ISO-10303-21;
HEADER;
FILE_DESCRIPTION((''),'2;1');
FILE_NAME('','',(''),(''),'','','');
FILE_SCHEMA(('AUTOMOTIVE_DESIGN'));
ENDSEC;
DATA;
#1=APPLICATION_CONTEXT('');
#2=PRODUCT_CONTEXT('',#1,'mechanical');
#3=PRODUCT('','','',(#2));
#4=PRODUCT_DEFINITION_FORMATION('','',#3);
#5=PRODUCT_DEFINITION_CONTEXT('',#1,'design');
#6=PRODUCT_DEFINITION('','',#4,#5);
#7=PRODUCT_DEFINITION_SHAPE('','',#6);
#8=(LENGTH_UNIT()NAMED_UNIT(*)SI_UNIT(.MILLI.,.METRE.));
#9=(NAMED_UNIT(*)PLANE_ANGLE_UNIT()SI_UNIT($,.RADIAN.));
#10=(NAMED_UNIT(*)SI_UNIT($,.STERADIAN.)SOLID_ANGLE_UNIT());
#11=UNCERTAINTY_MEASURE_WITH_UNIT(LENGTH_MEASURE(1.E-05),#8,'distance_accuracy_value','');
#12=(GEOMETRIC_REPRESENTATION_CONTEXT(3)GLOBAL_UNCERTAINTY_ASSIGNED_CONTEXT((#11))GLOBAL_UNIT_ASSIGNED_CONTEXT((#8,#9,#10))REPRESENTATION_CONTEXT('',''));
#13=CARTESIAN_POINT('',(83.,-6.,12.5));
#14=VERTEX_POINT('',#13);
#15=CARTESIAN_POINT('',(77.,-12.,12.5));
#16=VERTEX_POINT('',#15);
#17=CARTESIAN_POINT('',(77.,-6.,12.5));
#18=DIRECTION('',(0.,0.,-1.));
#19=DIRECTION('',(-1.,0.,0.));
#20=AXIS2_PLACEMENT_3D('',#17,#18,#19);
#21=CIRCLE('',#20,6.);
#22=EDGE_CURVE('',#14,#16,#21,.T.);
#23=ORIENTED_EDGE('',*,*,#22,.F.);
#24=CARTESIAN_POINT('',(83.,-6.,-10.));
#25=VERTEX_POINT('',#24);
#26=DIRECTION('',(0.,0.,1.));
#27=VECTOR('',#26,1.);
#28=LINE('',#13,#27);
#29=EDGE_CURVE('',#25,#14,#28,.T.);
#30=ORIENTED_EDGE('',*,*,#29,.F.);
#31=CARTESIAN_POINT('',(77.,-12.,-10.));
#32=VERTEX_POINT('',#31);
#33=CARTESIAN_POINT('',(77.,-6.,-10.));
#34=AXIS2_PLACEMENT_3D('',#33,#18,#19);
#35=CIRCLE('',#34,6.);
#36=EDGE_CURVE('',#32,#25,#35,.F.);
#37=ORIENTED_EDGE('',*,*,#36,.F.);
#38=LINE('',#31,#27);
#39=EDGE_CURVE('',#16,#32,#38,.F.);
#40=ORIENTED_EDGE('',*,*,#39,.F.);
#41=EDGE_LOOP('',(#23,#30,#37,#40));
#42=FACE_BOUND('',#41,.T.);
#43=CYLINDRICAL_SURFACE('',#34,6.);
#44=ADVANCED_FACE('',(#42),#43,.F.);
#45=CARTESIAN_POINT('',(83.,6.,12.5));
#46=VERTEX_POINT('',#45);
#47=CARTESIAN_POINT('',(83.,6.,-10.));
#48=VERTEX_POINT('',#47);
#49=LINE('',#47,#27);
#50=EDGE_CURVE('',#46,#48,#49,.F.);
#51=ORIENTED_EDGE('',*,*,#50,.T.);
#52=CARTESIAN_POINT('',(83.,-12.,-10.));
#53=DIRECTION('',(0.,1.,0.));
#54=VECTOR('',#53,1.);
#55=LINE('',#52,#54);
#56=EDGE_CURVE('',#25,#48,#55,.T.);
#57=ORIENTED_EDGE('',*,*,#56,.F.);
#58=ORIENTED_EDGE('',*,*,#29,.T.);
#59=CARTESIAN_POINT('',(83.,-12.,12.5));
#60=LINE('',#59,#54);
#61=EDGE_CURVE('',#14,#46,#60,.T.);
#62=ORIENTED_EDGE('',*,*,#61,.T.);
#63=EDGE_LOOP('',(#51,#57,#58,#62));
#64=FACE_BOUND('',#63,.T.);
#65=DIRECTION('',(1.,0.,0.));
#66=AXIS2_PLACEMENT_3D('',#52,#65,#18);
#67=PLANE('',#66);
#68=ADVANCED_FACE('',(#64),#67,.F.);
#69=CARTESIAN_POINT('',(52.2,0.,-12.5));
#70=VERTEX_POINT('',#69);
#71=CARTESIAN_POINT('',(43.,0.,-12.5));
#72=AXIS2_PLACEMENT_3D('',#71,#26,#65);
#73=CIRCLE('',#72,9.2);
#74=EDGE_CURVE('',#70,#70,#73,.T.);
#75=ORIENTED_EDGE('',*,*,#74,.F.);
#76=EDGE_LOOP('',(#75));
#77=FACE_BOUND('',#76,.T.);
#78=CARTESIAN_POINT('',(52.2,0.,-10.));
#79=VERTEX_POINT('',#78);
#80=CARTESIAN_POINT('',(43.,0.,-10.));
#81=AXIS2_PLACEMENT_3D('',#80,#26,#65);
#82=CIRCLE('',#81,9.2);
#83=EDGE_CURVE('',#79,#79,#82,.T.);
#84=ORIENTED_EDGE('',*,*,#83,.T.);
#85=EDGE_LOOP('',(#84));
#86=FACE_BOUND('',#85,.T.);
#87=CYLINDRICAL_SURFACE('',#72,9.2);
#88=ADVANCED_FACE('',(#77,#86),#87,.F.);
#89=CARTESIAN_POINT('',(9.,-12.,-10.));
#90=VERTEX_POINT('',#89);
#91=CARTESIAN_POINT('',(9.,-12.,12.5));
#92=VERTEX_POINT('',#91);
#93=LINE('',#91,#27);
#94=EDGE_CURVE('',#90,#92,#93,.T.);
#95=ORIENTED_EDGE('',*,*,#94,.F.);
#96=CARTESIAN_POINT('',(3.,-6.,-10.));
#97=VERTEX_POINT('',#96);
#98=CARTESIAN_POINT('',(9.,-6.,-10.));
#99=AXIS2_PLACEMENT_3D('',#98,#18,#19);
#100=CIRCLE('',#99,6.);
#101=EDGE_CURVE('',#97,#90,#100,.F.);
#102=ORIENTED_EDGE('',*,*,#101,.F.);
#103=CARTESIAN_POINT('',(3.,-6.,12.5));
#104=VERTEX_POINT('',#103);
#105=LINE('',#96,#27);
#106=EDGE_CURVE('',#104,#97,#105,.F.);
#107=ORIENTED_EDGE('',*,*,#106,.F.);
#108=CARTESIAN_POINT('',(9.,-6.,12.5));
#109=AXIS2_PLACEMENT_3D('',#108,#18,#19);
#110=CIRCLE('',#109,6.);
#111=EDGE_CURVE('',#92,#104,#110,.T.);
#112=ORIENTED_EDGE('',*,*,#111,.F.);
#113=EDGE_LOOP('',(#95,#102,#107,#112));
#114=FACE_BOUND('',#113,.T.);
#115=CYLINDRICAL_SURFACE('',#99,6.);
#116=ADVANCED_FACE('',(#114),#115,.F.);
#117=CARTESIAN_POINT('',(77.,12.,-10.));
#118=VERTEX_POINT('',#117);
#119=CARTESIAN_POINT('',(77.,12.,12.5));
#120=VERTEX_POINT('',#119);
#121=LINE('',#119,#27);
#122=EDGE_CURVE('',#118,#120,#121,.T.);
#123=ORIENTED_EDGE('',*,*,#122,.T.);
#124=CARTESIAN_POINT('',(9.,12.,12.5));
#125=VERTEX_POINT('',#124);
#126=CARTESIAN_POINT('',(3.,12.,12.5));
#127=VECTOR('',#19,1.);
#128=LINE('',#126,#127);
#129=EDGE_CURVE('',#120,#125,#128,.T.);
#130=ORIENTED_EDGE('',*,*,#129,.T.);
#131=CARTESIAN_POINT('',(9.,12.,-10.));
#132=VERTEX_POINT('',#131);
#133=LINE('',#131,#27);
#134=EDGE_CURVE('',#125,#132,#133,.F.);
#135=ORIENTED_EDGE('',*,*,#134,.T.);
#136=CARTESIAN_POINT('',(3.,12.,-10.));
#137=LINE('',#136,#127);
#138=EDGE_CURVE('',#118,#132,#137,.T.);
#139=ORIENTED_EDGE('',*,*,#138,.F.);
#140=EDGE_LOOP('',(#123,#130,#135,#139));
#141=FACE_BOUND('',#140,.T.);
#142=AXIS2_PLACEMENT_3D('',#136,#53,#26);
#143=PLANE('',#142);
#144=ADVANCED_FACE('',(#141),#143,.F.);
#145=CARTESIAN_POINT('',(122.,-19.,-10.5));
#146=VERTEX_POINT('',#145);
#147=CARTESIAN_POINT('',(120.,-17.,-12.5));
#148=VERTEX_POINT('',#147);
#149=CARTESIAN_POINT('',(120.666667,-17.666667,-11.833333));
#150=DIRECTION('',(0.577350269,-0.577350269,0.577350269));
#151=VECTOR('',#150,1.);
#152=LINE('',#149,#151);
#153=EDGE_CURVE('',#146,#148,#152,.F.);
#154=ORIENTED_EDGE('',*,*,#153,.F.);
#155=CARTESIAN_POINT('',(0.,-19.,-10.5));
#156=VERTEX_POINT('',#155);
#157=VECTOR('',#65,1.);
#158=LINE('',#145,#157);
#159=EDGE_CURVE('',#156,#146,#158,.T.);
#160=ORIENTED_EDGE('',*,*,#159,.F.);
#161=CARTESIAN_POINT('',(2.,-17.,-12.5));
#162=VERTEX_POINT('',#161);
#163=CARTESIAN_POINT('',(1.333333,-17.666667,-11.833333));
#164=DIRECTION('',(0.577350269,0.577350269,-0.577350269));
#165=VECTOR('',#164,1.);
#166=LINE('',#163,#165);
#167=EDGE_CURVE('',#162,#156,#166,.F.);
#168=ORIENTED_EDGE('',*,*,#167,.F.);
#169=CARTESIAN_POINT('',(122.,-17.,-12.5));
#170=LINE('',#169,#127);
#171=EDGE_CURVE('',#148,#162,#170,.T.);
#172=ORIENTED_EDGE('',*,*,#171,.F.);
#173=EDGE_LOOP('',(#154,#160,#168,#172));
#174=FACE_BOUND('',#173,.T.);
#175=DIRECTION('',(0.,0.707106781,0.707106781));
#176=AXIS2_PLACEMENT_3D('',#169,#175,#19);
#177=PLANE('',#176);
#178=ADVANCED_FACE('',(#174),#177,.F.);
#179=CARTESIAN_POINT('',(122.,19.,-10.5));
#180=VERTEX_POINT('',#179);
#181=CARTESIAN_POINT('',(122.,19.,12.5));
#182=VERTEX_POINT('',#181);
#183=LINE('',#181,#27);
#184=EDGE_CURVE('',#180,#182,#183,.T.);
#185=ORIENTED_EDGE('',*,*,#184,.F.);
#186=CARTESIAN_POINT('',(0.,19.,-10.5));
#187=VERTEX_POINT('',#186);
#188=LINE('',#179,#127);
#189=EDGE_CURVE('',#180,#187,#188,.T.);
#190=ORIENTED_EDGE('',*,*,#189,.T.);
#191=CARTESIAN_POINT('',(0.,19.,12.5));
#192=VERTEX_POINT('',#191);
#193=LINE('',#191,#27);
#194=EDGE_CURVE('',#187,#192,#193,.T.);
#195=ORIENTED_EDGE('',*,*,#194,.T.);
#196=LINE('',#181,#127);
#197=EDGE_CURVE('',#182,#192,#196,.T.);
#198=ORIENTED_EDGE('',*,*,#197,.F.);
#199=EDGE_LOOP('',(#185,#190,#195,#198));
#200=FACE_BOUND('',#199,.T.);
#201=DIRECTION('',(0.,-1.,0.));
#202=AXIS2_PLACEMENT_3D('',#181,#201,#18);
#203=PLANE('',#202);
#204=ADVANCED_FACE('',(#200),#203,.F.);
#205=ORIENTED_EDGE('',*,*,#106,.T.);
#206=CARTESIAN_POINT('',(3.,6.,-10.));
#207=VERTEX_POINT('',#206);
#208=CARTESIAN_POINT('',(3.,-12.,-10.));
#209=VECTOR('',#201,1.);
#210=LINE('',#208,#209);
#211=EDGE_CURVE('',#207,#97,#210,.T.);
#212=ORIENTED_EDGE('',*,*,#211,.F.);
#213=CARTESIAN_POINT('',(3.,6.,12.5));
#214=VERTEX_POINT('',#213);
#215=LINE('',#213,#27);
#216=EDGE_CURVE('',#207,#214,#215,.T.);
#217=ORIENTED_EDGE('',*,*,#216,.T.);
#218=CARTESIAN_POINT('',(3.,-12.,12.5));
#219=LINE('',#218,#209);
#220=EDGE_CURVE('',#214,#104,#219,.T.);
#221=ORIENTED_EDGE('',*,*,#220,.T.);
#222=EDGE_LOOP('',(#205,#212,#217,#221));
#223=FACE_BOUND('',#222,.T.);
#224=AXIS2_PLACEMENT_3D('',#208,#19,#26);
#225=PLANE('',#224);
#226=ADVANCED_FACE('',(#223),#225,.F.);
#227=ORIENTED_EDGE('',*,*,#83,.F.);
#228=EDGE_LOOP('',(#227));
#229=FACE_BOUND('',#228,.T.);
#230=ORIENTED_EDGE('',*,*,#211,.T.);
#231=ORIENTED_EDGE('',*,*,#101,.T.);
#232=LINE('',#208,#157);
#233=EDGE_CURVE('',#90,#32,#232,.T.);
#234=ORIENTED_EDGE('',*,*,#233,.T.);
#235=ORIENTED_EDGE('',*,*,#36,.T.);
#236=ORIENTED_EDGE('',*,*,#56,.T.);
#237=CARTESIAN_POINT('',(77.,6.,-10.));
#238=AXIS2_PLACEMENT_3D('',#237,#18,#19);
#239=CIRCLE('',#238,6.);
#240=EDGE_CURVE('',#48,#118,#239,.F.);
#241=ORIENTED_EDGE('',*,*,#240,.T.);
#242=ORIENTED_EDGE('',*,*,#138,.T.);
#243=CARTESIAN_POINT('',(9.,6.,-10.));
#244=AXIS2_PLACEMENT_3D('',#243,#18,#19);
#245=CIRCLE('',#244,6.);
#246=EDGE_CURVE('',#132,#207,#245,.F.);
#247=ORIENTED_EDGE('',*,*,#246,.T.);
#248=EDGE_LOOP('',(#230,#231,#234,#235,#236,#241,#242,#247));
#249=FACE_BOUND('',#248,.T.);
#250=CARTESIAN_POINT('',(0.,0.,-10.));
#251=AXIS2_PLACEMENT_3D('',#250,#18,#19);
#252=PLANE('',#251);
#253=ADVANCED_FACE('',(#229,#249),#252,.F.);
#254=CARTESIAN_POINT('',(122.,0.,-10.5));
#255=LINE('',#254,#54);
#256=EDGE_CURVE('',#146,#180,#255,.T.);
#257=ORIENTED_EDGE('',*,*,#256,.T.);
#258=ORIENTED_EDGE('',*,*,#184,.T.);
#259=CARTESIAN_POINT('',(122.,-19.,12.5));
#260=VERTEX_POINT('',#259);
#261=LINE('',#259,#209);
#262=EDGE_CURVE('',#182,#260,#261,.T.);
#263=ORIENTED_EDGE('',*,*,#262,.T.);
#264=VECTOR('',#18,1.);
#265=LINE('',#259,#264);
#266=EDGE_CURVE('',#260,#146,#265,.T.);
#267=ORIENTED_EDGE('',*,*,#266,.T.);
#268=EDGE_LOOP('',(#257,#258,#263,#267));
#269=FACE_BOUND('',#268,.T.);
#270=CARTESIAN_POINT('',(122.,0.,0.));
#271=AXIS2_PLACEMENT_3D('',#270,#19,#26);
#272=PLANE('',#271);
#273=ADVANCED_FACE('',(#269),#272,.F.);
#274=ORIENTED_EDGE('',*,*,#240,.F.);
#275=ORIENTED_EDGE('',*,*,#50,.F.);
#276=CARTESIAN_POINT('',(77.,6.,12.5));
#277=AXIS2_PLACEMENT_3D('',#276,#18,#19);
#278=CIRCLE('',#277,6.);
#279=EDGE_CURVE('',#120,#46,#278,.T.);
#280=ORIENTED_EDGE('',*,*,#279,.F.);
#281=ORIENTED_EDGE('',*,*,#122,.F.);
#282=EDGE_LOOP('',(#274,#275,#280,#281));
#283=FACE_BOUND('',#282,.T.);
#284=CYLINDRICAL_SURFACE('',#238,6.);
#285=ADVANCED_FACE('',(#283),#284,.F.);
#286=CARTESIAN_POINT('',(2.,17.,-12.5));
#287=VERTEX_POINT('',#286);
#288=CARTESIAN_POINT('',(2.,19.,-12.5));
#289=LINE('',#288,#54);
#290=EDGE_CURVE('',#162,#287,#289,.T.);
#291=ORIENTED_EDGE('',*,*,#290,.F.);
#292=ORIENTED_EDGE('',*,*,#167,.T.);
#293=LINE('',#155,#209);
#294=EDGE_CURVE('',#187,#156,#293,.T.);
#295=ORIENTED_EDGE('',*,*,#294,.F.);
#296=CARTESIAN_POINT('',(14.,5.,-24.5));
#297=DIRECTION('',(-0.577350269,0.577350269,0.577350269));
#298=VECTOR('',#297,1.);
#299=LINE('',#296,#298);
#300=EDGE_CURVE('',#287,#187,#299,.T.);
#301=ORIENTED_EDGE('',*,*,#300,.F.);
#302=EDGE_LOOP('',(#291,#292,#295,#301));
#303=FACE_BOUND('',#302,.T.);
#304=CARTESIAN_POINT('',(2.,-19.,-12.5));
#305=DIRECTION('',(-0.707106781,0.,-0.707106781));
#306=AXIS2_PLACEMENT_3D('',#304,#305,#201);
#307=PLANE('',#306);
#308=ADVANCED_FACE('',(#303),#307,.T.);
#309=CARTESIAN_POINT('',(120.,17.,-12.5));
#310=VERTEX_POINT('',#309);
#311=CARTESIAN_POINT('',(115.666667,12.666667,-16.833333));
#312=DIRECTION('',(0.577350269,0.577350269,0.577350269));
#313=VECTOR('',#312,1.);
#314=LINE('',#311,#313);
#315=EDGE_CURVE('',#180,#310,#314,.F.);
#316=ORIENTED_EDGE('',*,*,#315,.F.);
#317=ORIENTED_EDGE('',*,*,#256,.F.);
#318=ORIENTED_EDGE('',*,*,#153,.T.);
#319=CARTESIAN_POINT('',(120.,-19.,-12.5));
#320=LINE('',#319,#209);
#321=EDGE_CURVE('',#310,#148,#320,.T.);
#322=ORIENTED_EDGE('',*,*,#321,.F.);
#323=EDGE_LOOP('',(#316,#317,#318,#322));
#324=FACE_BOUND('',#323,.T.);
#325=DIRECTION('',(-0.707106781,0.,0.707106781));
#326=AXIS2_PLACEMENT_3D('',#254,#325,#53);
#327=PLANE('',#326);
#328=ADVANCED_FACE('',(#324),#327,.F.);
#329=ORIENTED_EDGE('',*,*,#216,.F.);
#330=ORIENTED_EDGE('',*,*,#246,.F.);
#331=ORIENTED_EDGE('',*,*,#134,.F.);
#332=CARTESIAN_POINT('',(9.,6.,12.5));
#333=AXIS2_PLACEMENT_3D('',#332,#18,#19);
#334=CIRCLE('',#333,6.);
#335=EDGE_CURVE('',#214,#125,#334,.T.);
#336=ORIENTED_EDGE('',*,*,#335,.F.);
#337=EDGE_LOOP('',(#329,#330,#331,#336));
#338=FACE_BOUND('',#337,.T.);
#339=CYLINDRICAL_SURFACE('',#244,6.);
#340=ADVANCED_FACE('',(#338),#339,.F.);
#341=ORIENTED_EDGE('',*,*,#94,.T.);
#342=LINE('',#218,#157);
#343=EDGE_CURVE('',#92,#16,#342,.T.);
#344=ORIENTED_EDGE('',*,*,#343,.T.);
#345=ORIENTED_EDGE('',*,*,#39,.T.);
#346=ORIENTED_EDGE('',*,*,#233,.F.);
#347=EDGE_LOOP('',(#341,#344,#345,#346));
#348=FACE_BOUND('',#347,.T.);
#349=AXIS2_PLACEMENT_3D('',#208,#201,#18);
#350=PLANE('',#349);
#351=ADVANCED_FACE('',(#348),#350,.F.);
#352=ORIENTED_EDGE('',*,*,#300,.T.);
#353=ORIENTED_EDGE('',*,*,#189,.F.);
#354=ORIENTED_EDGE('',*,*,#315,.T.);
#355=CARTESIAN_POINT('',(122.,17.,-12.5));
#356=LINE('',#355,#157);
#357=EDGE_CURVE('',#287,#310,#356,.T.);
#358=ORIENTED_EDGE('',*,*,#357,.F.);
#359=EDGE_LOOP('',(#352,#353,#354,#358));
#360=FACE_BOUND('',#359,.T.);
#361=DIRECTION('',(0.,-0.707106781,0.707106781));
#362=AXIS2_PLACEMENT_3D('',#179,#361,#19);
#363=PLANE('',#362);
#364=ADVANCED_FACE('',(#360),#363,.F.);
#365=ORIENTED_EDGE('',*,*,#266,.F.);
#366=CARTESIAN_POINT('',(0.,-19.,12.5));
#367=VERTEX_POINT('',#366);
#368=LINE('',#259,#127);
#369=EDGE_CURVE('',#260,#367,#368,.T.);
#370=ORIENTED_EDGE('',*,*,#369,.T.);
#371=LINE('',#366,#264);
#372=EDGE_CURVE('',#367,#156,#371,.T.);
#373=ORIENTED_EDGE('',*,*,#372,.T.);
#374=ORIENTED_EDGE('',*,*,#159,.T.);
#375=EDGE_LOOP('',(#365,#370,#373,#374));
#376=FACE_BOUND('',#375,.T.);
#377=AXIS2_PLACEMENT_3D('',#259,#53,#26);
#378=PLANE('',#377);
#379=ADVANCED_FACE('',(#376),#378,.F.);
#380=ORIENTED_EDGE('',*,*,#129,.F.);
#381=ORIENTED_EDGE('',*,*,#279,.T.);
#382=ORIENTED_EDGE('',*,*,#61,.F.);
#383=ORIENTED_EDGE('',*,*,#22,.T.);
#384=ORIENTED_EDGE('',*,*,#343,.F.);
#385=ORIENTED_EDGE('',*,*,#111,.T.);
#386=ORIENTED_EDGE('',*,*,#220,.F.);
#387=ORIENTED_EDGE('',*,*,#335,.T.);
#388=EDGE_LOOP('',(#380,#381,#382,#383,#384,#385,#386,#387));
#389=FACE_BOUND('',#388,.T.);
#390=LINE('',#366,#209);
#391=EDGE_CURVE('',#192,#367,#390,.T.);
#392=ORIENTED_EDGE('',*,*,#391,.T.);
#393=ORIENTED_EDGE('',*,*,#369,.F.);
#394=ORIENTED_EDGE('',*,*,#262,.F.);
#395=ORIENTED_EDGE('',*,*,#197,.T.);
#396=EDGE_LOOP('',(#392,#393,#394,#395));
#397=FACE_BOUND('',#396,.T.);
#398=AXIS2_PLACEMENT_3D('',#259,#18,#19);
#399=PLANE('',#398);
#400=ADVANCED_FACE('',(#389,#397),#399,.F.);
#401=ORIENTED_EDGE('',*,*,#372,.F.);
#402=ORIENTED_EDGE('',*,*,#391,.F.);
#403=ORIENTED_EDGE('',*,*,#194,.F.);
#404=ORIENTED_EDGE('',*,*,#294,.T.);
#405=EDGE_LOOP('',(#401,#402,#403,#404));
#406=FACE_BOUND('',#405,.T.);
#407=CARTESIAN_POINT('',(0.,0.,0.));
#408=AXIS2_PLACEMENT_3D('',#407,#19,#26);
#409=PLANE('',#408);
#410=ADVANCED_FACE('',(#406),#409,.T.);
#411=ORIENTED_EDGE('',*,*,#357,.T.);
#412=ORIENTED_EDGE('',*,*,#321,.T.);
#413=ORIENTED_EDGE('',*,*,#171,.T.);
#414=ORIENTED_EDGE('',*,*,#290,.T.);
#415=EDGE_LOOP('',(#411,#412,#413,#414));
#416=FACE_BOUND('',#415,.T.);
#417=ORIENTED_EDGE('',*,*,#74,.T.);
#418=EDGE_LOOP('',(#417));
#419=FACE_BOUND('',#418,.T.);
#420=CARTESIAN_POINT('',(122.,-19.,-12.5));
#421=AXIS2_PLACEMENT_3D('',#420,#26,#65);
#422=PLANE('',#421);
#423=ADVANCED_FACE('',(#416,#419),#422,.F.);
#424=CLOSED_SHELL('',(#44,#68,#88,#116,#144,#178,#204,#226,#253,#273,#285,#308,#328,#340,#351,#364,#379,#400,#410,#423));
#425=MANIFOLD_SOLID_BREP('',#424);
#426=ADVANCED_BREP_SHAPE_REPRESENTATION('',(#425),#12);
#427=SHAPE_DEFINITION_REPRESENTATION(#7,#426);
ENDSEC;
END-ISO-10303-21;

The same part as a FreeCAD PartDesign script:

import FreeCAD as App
import Part
import Sketcher
from FreeCAD import Vector


def edges_at(feature, points):
    """Names of the edges that pass closest to the given points."""
    edges = feature.Shape.Edges
    near = lambda p: min(range(len(edges)), key=lambda i: edges[i].distToShape(Part.Vertex(*p))[0])
    return sorted({f"Edge{near(p) + 1}" for p in points})


def add_polygon(sketch, points):
    """Adds a closed chain of lines whose ends are joined by coincident constraints."""
    first, n = sketch.GeometryCount, len(points)
    for a, b in zip(points, points[1:] + points[:1]):
        sketch.addGeometry(Part.LineSegment(App.Vector(*a, 0), App.Vector(*b, 0)), False)
    for i in range(n):
        sketch.addConstraint(Sketcher.Constraint("Coincident", first + i, 2, first + (i + 1) % n, 1))

doc = App.newDocument("Part")
body = doc.addObject("PartDesign::Body", "Body")

sketch1 = doc.addObject("Sketcher::SketchObject", "Sketch")
body.addObject(sketch1)
sketch1.AttachmentSupport = (doc.YZ_Plane, [""])
sketch1.MapMode = "FlatFace"
add_polygon(sketch1, [(19, 12), (-19, 12), (-19, -12), (19, -12)])
sketch1.addConstraint([
    Sketcher.Constraint("Horizontal", 0),
    Sketcher.Constraint("Vertical", 1),
    Sketcher.Constraint("Horizontal", 2),
    Sketcher.Constraint("Vertical", 3),
    Sketcher.Constraint("Symmetric", 0, 2, 2, 2, -1, 1),
    Sketcher.Constraint("DistanceX", 0, 2, 0, 1, 38.0),
    Sketcher.Constraint("DistanceY", 1, 2, 1, 1, 25.0),
])
pad1 = doc.addObject("PartDesign::Pad", "Pad")
body.addObject(pad1)
pad1.Profile = sketch1
pad1.Length = 122

sketch2 = doc.addObject("Sketcher::SketchObject", "Sketch001")
body.addObject(sketch2)
sketch2.AttachmentSupport = (doc.XY_Plane, [""])
sketch2.MapMode = "FlatFace"
sketch2.AttachmentOffset = App.Placement(Vector(0, 0, 12.5), App.Rotation())
add_polygon(sketch2, [(3, 12), (3, -12), (83, -12), (83, 12)])
sketch2.addConstraint([
    Sketcher.Constraint("Vertical", 0),
    Sketcher.Constraint("Horizontal", 1),
    Sketcher.Constraint("Vertical", 2),
    Sketcher.Constraint("Horizontal", 3),
    Sketcher.Constraint("DistanceX", 1, 1, 1, 2, 80.0),
    Sketcher.Constraint("DistanceY", 0, 2, 0, 1, 24.0),
    Sketcher.Constraint("DistanceX", -1, 1, 0, 2, 3.0),
    Sketcher.Constraint("DistanceY", 0, 2, -1, 1, 12.0),
])
pocket1 = doc.addObject("PartDesign::Pocket", "Pocket")
body.addObject(pocket1)
pocket1.Profile = sketch2
pocket1.Length = 22.5
doc.recompute()

fillet = doc.addObject("PartDesign::Fillet", "Fillet")
body.addObject(fillet)
fillet.Base = (pocket1, edges_at(pocket1, [(3, 12, 1.25)]))
fillet.Radius = 6
doc.recompute()

fillet2 = doc.addObject("PartDesign::Fillet", "Fillet001")
body.addObject(fillet2)
fillet2.Base = (fillet, edges_at(fillet, [(3, -12, 1.25)]))
fillet2.Radius = 6
doc.recompute()

fillet3 = doc.addObject("PartDesign::Fillet", "Fillet002")
body.addObject(fillet3)
fillet3.Base = (fillet2, edges_at(fillet2, [(83, -12, 1.25)]))
fillet3.Radius = 6
doc.recompute()

fillet4 = doc.addObject("PartDesign::Fillet", "Fillet003")
body.addObject(fillet4)
fillet4.Base = (fillet3, edges_at(fillet3, [(83, 12, 1.25)]))
fillet4.Radius = 6

sketch3 = doc.addObject("Sketcher::SketchObject", "Sketch002")
body.addObject(sketch3)
sketch3.AttachmentSupport = (doc.XY_Plane, [""])
sketch3.MapMode = "FlatFace"
sketch3.AttachmentOffset = App.Placement(Vector(0, 0, -10), App.Rotation())
sketch3.addGeometry(Part.Circle(Vector(43, 0, 0), Vector(0, 0, 1), 9), False)
sketch3.addConstraint([
    Sketcher.Constraint("PointOnObject", 0, 3, -1),
    Sketcher.Constraint("Diameter", 0, 18.4),
    Sketcher.Constraint("DistanceX", -1, 1, 0, 3, 43.0),
])
pocket2 = doc.addObject("PartDesign::Pocket", "Pocket001")
body.addObject(pocket2)
pocket2.Profile = sketch3
pocket2.Type = "ThroughAll"
doc.recompute()

chamfer = doc.addObject("PartDesign::Chamfer", "Chamfer")
body.addObject(chamfer)
chamfer.Base = (pocket2, edges_at(pocket2, [
    (122, 0, -12.5),
    (0, 0, -12.5),
    (61, -19, -12.5),
    (61, 19, -12.5),
]))
chamfer.Size = 2

doc.recompute()
